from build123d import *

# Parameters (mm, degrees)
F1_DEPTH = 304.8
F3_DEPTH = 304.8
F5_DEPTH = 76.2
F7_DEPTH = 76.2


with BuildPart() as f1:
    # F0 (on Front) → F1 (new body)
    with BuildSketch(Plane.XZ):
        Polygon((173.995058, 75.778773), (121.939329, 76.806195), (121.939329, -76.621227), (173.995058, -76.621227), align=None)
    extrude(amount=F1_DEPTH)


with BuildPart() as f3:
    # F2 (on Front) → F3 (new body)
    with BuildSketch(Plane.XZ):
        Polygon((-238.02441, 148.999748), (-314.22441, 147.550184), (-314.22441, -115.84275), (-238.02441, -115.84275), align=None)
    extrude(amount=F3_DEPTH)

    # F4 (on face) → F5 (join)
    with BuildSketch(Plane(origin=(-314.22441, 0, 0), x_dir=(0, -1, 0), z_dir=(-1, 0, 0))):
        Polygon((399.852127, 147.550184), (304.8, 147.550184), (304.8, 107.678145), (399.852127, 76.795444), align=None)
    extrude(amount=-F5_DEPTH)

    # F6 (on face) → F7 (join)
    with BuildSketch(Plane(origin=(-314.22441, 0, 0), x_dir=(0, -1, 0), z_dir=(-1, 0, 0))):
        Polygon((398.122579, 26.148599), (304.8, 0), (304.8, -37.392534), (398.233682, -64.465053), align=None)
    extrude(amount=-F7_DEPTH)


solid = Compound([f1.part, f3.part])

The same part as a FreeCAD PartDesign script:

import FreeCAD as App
import Part
import Sketcher
Q = App.Units.Quantity


def add_polygon(sketch, points):
    """Adds a closed chain of lines whose ends are joined by coincident constraints."""
    first, n = sketch.GeometryCount, len(points)
    for a, b in zip(points, points[1:] + points[:1]):
        sketch.addGeometry(Part.LineSegment(App.Vector(*a, 0), App.Vector(*b, 0)), False)
    for i in range(n):
        sketch.addConstraint(Sketcher.Constraint("Coincident", first + i, 2, first + (i + 1) % n, 1))

doc = App.newDocument("Part")
params = doc.addObject("Spreadsheet::Sheet", "Params")
for row, (alias, value) in enumerate([
    ("sketch1_height", "6 in"),
    ("pad1_length", "12 in"),
    ("sketch2_width", "3 in"),
    ("pad2_length", "12 in"),
    ("pad3_length", "3 in"),
    ("pad4_length", "3 in"),
], start=1):
    params.set(f"A{row}", alias)
    params.set(f"B{row}", "=" + value)
    params.setAlias(f"B{row}", alias)

body = doc.addObject("PartDesign::Body", "Body")

# Sketch on XZ plane
sketch1 = body.newObject("Sketcher::SketchObject", "Sketch")
sketch1.AttachmentSupport = (doc.getObject("XZ_Plane"), [""])
sketch1.MapMode = "FlatFace"
add_polygon(sketch1, [(174, 76), (122, 77), (122, -77), (174, -77)])  # lines 0-3
sketch1.addConstraint(Sketcher.Constraint("Vertical", 1))
sketch1.addConstraint(Sketcher.Constraint("Horizontal", 2))
sketch1.addConstraint(Sketcher.Constraint("Vertical", 3))
sketch1.addConstraint(Sketcher.Constraint("DistanceY", 3, 1, 3, 2, Q("6 in")))
sketch1.addConstraint(Sketcher.Constraint("DistanceX", 2, 1, 2, 2, 52.055729))
sketch1.addConstraint(Sketcher.Constraint("DistanceY", 1, 2, 1, 1, 153.427422))
sketch1.addConstraint(Sketcher.Constraint("DistanceX", -1, 1, 0, 2, 121.939329))
sketch1.addConstraint(Sketcher.Constraint("DistanceY", -1, 1, 0, 2, 76.806195))
sketch1.setExpression("Constraints[7]", "Params.sketch1_height")
pad1 = body.newObject("PartDesign::Pad", "Pad")
pad1.Profile = sketch1
pad1.setExpression("Length", "Params.pad1_length")
body2 = doc.addObject("PartDesign::Body", "Body001")

# Sketch on XZ plane
sketch2 = body2.newObject("Sketcher::SketchObject", "Sketch001")
sketch2.AttachmentSupport = (doc.getObject("XZ_Plane001"), [""])
sketch2.MapMode = "FlatFace"
add_polygon(sketch2, [(-238, 149), (-314, 148), (-314, -116), (-238, -116)])  # lines 0-3
sketch2.addConstraint(Sketcher.Constraint("Vertical", 1))
sketch2.addConstraint(Sketcher.Constraint("Horizontal", 2))
sketch2.addConstraint(Sketcher.Constraint("Vertical", 3))
sketch2.addConstraint(Sketcher.Constraint("DistanceX", 2, 1, 2, 2, Q("3 in")))
sketch2.addConstraint(Sketcher.Constraint("DistanceY", 3, 1, 3, 2, 264.842498))
sketch2.addConstraint(Sketcher.Constraint("DistanceY", 1, 2, 1, 1, 263.392934))
sketch2.addConstraint(Sketcher.Constraint("DistanceX", 0, 2, -1, 1, 314.22441))
sketch2.addConstraint(Sketcher.Constraint("DistanceY", 1, 2, -1, 1, 115.84275))
sketch2.setExpression("Constraints[7]", "Params.sketch2_width")
pad2 = body2.newObject("PartDesign::Pad", "Pad001")
pad2.Profile = sketch2
pad2.setExpression("Length", "Params.pad2_length")

# Sketch on YZ plane
sketch3 = body2.newObject("Sketcher::SketchObject", "Sketch002")
sketch3.AttachmentSupport = (doc.getObject("YZ_Plane001"), [""])
sketch3.MapMode = "FlatFace"
sketch3.AttachmentOffset = App.Placement(App.Vector(0, 0, -314.22441), App.Rotation())
add_polygon(sketch3, [(-400, 148), (-305, 148), (-305, 108), (-400, 77)])  # lines 0-3
sketch3.addConstraint(Sketcher.Constraint("Horizontal", 0))
sketch3.addConstraint(Sketcher.Constraint("Vertical", 1))
sketch3.addConstraint(Sketcher.Constraint("Vertical", 3))
sketch3.addConstraint(Sketcher.Constraint("DistanceX", 0, 2, -1, 1, Q("12 in")))
sketch3.addConstraint(Sketcher.Constraint("DistanceY", 1, 2, 1, 1, 39.872039))
sketch3.addConstraint(Sketcher.Constraint("DistanceY", 3, 1, 3, 2, 70.75474))
sketch3.addConstraint(Sketcher.Constraint("DistanceX", 0, 1, 0, 2, 95.052127))
sketch3.addConstraint(Sketcher.Constraint("DistanceY", -1, 1, 0, 2, 147.550184))
pad3 = body2.newObject("PartDesign::Pad", "Pad002")
pad3.Profile = sketch3
pad3.setExpression("Length", "Params.pad3_length")

# Sketch on YZ plane
sketch4 = body2.newObject("Sketcher::SketchObject", "Sketch003")
sketch4.AttachmentSupport = (doc.getObject("YZ_Plane001"), [""])
sketch4.MapMode = "FlatFace"
sketch4.AttachmentOffset = App.Placement(App.Vector(0, 0, -314.22441), App.Rotation())
add_polygon(sketch4, [(-398, 26), (-305, 0), (-305, -37), (-398, -64)])  # lines 0-3
sketch4.addConstraint(Sketcher.Constraint("Vertical", 1))
sketch4.addConstraint(Sketcher.Constraint("PointOnObject", 0, 2, -1))
sketch4.addConstraint(Sketcher.Constraint("DistanceX", 0, 2, -1, 1, Q("12 in")))
sketch4.addConstraint(Sketcher.Constraint("DistanceY", -1, 1, 3, 2, 26.148599))
sketch4.addConstraint(Sketcher.Constraint("Distance", 2, 97.276792))
sketch4.addConstraint(Sketcher.Constraint("Distance", 3, 90.61372))
sketch4.addConstraint(Sketcher.Constraint("DistanceY", 1, 2, 1, 1, 37.392534))
sketch4.addConstraint(Sketcher.Constraint("DistanceX", 3, 2, -1, 1, 398.122579))
pad4 = body2.newObject("PartDesign::Pad", "Pad003")
pad4.Profile = sketch4
pad4.setExpression("Length", "Params.pad4_length")

doc.recompute()
